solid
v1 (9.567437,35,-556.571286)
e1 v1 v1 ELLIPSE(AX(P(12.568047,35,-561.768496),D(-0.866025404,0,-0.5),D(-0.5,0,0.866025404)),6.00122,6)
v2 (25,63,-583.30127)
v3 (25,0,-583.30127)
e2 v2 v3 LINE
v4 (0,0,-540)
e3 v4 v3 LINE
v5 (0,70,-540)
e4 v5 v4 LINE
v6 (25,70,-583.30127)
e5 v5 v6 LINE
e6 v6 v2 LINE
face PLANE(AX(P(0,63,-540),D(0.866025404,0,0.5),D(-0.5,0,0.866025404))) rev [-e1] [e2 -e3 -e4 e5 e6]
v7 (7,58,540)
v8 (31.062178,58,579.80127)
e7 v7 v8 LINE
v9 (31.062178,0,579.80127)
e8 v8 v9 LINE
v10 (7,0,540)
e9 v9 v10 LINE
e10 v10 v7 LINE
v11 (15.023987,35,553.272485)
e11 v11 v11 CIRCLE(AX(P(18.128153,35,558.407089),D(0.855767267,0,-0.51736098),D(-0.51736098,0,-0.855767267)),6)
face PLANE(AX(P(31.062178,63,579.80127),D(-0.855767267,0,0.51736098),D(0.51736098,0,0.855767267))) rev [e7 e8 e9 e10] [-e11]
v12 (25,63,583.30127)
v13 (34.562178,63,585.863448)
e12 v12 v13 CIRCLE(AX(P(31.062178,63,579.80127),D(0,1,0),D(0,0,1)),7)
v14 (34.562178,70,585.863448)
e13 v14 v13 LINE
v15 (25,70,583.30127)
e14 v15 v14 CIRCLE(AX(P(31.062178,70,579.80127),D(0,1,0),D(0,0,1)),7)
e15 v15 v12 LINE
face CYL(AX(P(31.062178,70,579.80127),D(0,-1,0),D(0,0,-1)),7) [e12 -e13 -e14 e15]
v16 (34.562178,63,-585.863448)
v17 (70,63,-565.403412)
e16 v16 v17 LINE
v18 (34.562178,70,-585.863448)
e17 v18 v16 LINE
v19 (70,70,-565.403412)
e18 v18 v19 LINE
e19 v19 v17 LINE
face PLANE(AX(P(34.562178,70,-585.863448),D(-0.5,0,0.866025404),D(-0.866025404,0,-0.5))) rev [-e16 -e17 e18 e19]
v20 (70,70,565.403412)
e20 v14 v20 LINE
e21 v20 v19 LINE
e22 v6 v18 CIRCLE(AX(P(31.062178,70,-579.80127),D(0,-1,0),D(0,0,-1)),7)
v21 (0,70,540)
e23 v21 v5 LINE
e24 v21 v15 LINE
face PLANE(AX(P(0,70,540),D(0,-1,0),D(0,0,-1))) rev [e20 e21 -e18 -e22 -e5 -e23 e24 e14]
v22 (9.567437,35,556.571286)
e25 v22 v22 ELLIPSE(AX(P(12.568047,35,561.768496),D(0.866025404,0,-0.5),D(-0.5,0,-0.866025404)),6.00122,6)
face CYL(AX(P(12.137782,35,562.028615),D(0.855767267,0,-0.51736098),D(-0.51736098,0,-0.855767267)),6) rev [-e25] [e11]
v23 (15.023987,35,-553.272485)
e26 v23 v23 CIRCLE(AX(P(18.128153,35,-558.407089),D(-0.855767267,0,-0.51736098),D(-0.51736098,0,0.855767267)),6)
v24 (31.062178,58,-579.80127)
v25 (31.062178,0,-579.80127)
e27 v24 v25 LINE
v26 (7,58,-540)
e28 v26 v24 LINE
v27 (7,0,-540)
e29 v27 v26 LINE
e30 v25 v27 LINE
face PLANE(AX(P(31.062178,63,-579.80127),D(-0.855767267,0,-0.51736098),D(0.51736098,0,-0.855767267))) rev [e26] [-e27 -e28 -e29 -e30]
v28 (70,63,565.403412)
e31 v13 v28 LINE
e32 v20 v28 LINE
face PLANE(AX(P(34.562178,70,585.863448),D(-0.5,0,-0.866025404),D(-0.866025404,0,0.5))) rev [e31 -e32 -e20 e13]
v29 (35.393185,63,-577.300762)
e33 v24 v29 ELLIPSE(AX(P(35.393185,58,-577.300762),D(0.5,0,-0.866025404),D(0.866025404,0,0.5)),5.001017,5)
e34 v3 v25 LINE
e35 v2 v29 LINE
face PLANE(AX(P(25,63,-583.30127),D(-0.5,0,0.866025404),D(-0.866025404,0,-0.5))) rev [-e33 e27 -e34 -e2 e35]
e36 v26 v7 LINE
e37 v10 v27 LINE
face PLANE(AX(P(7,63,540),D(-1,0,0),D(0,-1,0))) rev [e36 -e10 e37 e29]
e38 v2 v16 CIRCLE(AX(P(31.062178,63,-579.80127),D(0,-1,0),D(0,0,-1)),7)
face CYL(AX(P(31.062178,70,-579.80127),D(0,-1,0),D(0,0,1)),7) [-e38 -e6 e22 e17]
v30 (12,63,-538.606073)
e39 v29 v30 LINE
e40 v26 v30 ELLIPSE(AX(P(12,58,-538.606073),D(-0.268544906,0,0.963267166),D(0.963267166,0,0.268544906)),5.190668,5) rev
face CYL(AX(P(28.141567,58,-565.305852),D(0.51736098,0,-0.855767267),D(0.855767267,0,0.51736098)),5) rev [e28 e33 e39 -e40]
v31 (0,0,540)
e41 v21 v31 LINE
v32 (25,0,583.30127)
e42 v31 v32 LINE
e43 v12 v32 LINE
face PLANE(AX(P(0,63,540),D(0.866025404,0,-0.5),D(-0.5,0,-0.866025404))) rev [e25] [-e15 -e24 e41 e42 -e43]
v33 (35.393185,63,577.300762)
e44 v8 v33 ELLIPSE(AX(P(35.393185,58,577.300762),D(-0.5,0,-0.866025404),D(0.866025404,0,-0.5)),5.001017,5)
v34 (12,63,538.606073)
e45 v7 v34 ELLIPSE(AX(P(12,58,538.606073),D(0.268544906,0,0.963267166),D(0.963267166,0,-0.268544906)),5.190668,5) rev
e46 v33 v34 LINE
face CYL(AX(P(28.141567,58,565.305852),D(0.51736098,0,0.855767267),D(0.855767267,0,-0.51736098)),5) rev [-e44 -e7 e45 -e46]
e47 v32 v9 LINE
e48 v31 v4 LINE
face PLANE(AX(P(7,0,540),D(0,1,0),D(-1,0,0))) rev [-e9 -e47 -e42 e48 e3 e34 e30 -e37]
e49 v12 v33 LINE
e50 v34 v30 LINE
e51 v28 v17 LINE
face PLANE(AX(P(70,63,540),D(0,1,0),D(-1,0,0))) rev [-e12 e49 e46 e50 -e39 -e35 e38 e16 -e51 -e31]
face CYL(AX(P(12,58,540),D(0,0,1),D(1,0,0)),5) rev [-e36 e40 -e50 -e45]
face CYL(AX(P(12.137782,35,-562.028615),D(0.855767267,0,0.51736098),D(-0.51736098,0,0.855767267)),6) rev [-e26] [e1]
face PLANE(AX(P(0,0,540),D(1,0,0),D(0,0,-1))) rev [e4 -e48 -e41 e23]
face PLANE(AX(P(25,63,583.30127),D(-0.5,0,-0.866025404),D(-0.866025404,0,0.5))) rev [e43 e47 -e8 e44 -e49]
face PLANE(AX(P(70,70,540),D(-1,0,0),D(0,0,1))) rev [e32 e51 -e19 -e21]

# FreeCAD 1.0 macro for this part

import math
import FreeCAD as App
import Part
import Sketcher
from FreeCAD import Vector
Q = App.Units.Quantity


def edges_at(feature, points):
    """Names of the edges that pass closest to the given points."""
    edges = feature.Shape.Edges
    near = lambda p: min(range(len(edges)), key=lambda i: edges[i].distToShape(Part.Vertex(*p))[0])
    return sorted({f"Edge{near(p) + 1}" for p in points})

doc = App.newDocument("Part")
body = doc.addObject("PartDesign::Body", "Body")

# Sketch on XY plane
sketch1 = body.newObject("Sketcher::SketchObject", "Sketch")
sketch1.AttachmentSupport = (doc.getObject("XY_Plane"), [""])
sketch1.MapMode = "FlatFace"
sketch1.addGeometry(Part.LineSegment(Vector(0, 70, 0), Vector(0, 0, 0)), False)
sketch1.addGeometry(Part.LineSegment(Vector(0, 0, 0), Vector(7, 0, 0)), False)
sketch1.addGeometry(Part.LineSegment(Vector(7, 0, 0), Vector(7, 63, 0)), False)
sketch1.addGeometry(Part.LineSegment(Vector(7, 63, 0), Vector(70, 63, 0)), False)
sketch1.addGeometry(Part.LineSegment(Vector(70, 63, 0), Vector(70, 70, 0)), False)
sketch1.addGeometry(Part.LineSegment(Vector(70, 70, 0), Vector(0, 70, 0)), False)
sketch1.addConstraint(Sketcher.Constraint("Coincident", 0, 2, 1, 1))
sketch1.addConstraint(Sketcher.Constraint("Coincident", 1, 2, 2, 1))
sketch1.addConstraint(Sketcher.Constraint("Coincident", 2, 2, 3, 1))
sketch1.addConstraint(Sketcher.Constraint("Coincident", 3, 2, 4, 1))
sketch1.addConstraint(Sketcher.Constraint("Coincident", 4, 2, 5, 1))
sketch1.addConstraint(Sketcher.Constraint("Coincident", 5, 2, 0, 1))
sketch1.addConstraint(Sketcher.Constraint("Vertical", 0))
sketch1.addConstraint(Sketcher.Constraint("Horizontal", 1))
sketch1.addConstraint(Sketcher.Constraint("Vertical", 2))
sketch1.addConstraint(Sketcher.Constraint("Horizontal", 3))
sketch1.addConstraint(Sketcher.Constraint("Vertical", 4))
sketch1.addConstraint(Sketcher.Constraint("Horizontal", 5))
sketch1.addConstraint(Sketcher.Constraint("Coincident", 0, 2, -1, 1))
sketch1.addConstraint(Sketcher.Constraint("Equal", 5, 0))
sketch1.addConstraint(Sketcher.Constraint("Equal", 3, 2))
sketch1.addConstraint(Sketcher.Constraint("DistanceX", 1, 1, 1, 2, Q("7 mm")))
sketch1.addConstraint(Sketcher.Constraint("DistanceX", 3, 1, 3, 2, Q("63 mm")))
pad1 = body.newObject("PartDesign::Pad", "Pad")
pad1.Profile = sketch1
pad1.Length = 540

# Sketch on XZ plane
sketch2 = body.newObject("Sketcher::SketchObject", "Sketch001")
sketch2.AttachmentSupport = (doc.getObject("XZ_Plane"), [""])
sketch2.MapMode = "FlatFace"
sketch2.addGeometry(Part.LineSegment(Vector(0, 540, 0), Vector(25, 583, 0)), False)
sketch2.addGeometry(Part.LineSegment(Vector(25, 583, 0), Vector(31, 580, 0)), False)
sketch2.addGeometry(Part.LineSegment(Vector(31, 580, 0), Vector(7, 540, 0)), False)
sketch2.addGeometry(Part.LineSegment(Vector(7, 540, 0), Vector(0, 540, 0)), False)
sketch2.addConstraint(Sketcher.Constraint("Coincident", 0, 2, 1, 1))
sketch2.addConstraint(Sketcher.Constraint("Coincident", 1, 2, 2, 1))
sketch2.addConstraint(Sketcher.Constraint("Coincident", 2, 2, 3, 1))
sketch2.addConstraint(Sketcher.Constraint("Coincident", 3, 2, 0, 1))
sketch2.addConstraint(Sketcher.Constraint("Horizontal", 3))
sketch2.addConstraint(Sketcher.Constraint("PointOnObject", 3, 2, -2))
sketch2.addConstraint(Sketcher.Constraint("Perpendicular", 0, 1))
sketch2.addConstraint(Sketcher.Constraint("DistanceX", 3, 2, 3, 1, Q("7 mm")))
sketch2.addConstraint(Sketcher.Constraint("Angle", 0, Q("60 deg")))
sketch2.addConstraint(Sketcher.Constraint("Distance", 0, Q("50 mm")))
sketch2.addConstraint(Sketcher.Constraint("Distance", 1, Q("7 mm")))
sketch2.addConstraint(Sketcher.Constraint("DistanceY", -1, 1, 2, 2, Q("540 mm")))
pad2 = body.newObject("PartDesign::Pad", "Pad001")
pad2.Profile = sketch2
pad2.Length = 63
pad2.Reversed = True

# Sketch on XZ plane
sketch3 = body.newObject("Sketcher::SketchObject", "Sketch002")
sketch3.AttachmentSupport = (doc.getObject("XZ_Plane"), [""])
sketch3.MapMode = "FlatFace"
sketch3.AttachmentOffset = App.Placement(Vector(0, 0, -63), App.Rotation())
sketch3.addGeometry(Part.LineSegment(Vector(0, 540, 0), Vector(25, 583, 0)), False)
sketch3.addGeometry(Part.ArcOfCircle(Part.Circle(Vector(31, 580, 0), Vector(0, 0, 1), 7), math.radians(60), math.radians(150)), False)
sketch3.addGeometry(Part.LineSegment(Vector(35, 586, 0), Vector(70, 565, 0)), False)
sketch3.addGeometry(Part.LineSegment(Vector(70, 565, 0), Vector(70, 540, 0)), False)
sketch3.addGeometry(Part.LineSegment(Vector(70, 540, 0), Vector(0, 540, 0)), False)
sketch3.addConstraint(Sketcher.Constraint("Tangent", 0, 2, 1, 2))
sketch3.addConstraint(Sketcher.Constraint("Tangent", 1, 1, 2, 1))
sketch3.addConstraint(Sketcher.Constraint("Coincident", 2, 2, 3, 1))
sketch3.addConstraint(Sketcher.Constraint("Coincident", 3, 2, 4, 1))
sketch3.addConstraint(Sketcher.Constraint("Coincident", 4, 2, 0, 1))
sketch3.addConstraint(Sketcher.Constraint("Vertical", 3))
sketch3.addConstraint(Sketcher.Constraint("Horizontal", 4))
sketch3.addConstraint(Sketcher.Constraint("PointOnObject", 4, 2, -2))
sketch3.addConstraint(Sketcher.Constraint("Perpendicular", 0, 2))
sketch3.addConstraint(Sketcher.Constraint("Radius", 1, Q("7 mm")))
sketch3.addConstraint(Sketcher.Constraint("DistanceX", 4, 2, 4, 1, Q("70 mm")))
sketch3.addConstraint(Sketcher.Constraint("Angle", 0, Q("60 deg")))
sketch3.addConstraint(Sketcher.Constraint("Distance", 0, Q("50 mm")))
sketch3.addConstraint(Sketcher.Constraint("DistanceY", -1, 1, 3, 2, Q("540 mm")))
pad3 = body.newObject("PartDesign::Pad", "Pad002")
pad3.Profile = sketch3
pad3.Length = 7
pad3.Reversed = True

# Sketch on an angled plane
sketch4 = body.newObject("Sketcher::SketchObject", "Sketch003")
sketch4.Placement = App.Placement(Vector(-233.953557, 0, 141.438503), App.Rotation(Vector(-0.51736098, 0, -0.855767267), Vector(0, 0.999999999, 0), Vector(0.855767267, 0, -0.51736098), "ZXY"))
sketch4.addGeometry(Part.Circle(Vector(-487, 35, 0), Vector(0, 0, 1), 6), False)
sketch4.addConstraint(Sketcher.Constraint("Diameter", 0, Q("12 mm")))
sketch4.addConstraint(Sketcher.Constraint("DistanceY", -1, 1, 0, 3, Q("35 mm")))
sketch4.addConstraint(Sketcher.Constraint("DistanceX", 0, 3, -1, 1, Q("487.245307 mm")))
pocket1 = body.newObject("PartDesign::Pocket", "Pocket")
pocket1.Profile = sketch4
pocket1.Length = 7
doc.recompute()

fillet = body.newObject("PartDesign::Fillet", "Fillet")
fillet.Base = (pocket1, edges_at(pocket1, [(7, 63, 270), (19.031, 63, 559.901)]))
fillet.Radius = 5
body2 = doc.addObject("PartDesign::Body", "Body001")
doc.recompute()

body2.BaseFeature = body
doc.recompute()

mirroring = doc.addObject("Part::Mirroring", "Mirroring")
mirroring.Source = body
mirroring.Base = Vector(0, 0, 0)
mirroring.Normal = Vector(0, 0, 1)
body3 = doc.addObject("PartDesign::Body", "Body002")
body3.BaseFeature = mirroring
boolean = body2.newObject("PartDesign::Boolean", "Boolean")
boolean.Type = "Fuse"
boolean.addObjects([body3])
doc.recompute()
mirroring.Visibility = False

doc.recompute()
